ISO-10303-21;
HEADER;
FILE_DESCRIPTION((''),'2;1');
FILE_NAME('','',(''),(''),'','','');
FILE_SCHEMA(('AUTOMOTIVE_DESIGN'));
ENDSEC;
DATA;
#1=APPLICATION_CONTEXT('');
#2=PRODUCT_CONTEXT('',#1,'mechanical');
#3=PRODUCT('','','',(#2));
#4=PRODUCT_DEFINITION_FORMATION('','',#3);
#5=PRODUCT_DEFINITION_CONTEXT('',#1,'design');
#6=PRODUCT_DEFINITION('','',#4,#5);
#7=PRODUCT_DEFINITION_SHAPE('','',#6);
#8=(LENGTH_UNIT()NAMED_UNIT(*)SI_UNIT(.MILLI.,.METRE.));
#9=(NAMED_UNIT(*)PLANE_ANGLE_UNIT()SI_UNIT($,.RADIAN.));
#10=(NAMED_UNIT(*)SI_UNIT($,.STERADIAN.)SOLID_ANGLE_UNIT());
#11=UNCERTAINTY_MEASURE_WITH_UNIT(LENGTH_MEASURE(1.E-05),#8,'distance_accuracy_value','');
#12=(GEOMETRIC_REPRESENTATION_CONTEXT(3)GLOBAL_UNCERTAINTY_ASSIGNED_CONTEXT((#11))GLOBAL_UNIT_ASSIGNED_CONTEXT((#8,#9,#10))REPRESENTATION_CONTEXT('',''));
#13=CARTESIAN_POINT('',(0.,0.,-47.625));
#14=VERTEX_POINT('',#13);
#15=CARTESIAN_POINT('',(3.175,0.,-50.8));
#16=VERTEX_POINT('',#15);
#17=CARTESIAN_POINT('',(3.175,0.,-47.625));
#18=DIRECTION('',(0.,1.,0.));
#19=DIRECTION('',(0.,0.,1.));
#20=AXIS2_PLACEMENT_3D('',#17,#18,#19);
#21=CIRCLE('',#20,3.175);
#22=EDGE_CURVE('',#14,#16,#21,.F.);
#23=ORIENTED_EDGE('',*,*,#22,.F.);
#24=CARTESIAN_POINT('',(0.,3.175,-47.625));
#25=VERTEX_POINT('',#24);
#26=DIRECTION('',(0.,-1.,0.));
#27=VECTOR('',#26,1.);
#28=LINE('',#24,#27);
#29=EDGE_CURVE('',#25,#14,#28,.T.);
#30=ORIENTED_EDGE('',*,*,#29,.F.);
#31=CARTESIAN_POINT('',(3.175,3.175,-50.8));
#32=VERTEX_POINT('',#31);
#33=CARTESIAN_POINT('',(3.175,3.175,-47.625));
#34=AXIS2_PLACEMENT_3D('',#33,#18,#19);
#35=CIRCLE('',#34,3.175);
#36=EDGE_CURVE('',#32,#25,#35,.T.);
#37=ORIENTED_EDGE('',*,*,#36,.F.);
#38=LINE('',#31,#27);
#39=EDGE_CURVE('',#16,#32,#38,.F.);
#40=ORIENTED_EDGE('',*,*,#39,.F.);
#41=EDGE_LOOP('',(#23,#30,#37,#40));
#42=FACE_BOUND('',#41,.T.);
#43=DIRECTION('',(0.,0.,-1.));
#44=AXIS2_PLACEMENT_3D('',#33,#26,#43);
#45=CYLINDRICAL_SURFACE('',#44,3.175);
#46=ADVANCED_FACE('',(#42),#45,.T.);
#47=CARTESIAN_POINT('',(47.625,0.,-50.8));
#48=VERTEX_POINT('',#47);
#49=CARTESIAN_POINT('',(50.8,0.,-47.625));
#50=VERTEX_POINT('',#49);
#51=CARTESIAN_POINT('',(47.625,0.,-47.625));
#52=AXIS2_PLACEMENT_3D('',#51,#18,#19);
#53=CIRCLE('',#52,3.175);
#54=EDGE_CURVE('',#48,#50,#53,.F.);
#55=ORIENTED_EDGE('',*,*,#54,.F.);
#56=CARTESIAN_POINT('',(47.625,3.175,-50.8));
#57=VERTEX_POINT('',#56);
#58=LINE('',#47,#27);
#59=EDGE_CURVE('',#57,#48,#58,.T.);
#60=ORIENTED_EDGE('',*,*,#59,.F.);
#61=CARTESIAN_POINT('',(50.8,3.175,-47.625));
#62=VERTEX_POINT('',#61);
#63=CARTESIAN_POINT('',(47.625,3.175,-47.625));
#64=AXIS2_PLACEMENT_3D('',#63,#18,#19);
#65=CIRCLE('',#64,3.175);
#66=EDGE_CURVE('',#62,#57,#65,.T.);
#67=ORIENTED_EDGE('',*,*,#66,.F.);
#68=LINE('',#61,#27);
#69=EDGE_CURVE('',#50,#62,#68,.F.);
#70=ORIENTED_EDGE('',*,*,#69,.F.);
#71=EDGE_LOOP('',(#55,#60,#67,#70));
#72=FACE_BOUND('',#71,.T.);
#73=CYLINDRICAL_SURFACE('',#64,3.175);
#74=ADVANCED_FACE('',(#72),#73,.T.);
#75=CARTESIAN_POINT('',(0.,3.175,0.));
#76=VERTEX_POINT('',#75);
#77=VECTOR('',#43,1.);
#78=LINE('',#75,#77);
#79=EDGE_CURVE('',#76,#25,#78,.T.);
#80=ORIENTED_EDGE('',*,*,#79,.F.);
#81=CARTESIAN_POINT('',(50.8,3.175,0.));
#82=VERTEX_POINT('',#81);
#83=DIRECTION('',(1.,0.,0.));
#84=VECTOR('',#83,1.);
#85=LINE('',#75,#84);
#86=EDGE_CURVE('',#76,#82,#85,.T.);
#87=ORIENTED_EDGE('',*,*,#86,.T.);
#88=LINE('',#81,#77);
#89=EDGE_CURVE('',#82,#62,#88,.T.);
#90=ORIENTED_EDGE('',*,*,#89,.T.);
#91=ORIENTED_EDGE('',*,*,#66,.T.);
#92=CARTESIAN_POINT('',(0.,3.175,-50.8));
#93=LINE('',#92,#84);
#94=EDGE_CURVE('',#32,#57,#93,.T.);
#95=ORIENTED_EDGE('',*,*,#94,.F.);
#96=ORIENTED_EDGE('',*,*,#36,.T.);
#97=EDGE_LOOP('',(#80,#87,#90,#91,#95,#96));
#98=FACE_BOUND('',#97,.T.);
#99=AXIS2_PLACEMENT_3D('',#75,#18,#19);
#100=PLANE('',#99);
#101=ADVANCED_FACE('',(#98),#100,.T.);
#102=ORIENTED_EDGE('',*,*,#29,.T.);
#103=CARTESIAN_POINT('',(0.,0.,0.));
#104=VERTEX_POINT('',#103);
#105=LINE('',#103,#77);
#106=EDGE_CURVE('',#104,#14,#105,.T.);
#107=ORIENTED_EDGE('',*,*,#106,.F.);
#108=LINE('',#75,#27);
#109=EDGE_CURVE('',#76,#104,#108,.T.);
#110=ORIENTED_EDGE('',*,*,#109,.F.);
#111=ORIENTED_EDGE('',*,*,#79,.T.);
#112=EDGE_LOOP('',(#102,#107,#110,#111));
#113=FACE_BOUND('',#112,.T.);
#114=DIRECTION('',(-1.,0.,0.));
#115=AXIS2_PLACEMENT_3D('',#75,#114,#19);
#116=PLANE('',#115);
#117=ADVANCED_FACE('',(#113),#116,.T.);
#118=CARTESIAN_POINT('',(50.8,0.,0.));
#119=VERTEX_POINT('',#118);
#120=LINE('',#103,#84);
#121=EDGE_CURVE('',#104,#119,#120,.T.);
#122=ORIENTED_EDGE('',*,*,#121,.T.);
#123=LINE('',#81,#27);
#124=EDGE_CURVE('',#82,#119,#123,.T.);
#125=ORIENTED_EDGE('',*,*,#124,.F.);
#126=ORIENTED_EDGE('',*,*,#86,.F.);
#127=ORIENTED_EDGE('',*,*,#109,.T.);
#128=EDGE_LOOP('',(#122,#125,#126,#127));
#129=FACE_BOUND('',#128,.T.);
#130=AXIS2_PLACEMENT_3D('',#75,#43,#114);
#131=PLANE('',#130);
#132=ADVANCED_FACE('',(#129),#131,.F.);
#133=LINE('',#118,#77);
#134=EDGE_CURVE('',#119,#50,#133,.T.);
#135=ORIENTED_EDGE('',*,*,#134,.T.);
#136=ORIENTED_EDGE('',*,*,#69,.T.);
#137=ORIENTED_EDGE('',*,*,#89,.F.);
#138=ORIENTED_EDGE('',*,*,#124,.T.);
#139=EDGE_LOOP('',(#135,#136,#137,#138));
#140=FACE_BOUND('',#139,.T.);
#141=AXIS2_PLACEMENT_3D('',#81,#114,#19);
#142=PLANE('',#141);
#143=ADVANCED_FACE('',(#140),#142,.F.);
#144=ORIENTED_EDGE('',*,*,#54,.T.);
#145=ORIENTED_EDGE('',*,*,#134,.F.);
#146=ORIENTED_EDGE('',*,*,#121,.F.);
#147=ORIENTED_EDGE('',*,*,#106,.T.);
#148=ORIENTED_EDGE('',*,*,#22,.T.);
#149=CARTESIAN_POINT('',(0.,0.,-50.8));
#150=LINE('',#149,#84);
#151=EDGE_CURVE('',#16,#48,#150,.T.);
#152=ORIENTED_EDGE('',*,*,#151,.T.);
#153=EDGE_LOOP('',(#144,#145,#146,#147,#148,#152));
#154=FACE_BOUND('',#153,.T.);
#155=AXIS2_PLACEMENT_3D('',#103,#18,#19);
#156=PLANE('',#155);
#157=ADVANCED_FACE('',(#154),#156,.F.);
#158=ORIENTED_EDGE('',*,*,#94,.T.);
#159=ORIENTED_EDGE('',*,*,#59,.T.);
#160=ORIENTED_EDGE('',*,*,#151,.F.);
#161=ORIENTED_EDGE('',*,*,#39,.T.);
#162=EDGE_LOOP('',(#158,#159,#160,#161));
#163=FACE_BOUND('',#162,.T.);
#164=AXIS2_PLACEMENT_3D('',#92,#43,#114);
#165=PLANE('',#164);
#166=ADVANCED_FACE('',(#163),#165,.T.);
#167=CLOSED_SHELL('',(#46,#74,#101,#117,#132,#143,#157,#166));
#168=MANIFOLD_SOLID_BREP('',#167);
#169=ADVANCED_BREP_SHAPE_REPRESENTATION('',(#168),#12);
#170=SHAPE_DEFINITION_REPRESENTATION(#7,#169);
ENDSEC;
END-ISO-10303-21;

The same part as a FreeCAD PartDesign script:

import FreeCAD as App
import Part
import Sketcher

V = App.Vector
Q = App.Units.Quantity


def edges_at(feature, points):
    """Names of the edges that pass closest to the given points."""
    edges = feature.Shape.Edges
    near = lambda p: min(range(len(edges)), key=lambda i: edges[i].distToShape(Part.Vertex(*p))[0])
    return sorted({f"Edge{near(p) + 1}" for p in points})

doc = App.newDocument("Part")
body = doc.addObject("PartDesign::Body", "Body")

# Sketch on XZ plane
sketch1 = doc.addObject("Sketcher::SketchObject", "Sketch")
body.addObject(sketch1)
sketch1.AttachmentSupport = (doc.XZ_Plane, [""])
sketch1.MapMode = "FlatFace"
sketch1.addGeometry([
    Part.LineSegment(V(0, -51, 0), V(0, 0, 0)),
    Part.LineSegment(V(0, 0, 0), V(51, 0, 0)),
    Part.LineSegment(V(51, 0, 0), V(51, -51, 0)),
    Part.LineSegment(V(51, -51, 0), V(0, -51, 0)),
], False)
sketch1.addConstraint([
    Sketcher.Constraint("Coincident", 0, 2, 1, 1),
    Sketcher.Constraint("Coincident", 1, 2, 2, 1),
    Sketcher.Constraint("Coincident", 2, 2, 3, 1),
    Sketcher.Constraint("Coincident", 3, 2, 0, 1),
    Sketcher.Constraint("Vertical", 0),
    Sketcher.Constraint("Horizontal", 1),
    Sketcher.Constraint("Vertical", 2),
    Sketcher.Constraint("Horizontal", 3),
    Sketcher.Constraint("Coincident", 0, 2, -1, 1),
    Sketcher.Constraint("Equal", 3, 0),
    Sketcher.Constraint("DistanceX", 1, 1, 1, 2, Q("2 in")),
])
pad1 = doc.addObject("PartDesign::Pad", "Pad")
body.addObject(pad1)
pad1.Profile = sketch1
pad1.Length = Q("0.125 in")
pad1.Reversed = True
doc.recompute()

fillet = doc.addObject("PartDesign::Fillet", "Fillet")
body.addObject(fillet)
fillet.Base = (pad1, edges_at(pad1, [(0, 1.587, -50.8), (50.8, 1.587, -50.8)]))
fillet.Radius = Q("0.125 in")

doc.recompute()
